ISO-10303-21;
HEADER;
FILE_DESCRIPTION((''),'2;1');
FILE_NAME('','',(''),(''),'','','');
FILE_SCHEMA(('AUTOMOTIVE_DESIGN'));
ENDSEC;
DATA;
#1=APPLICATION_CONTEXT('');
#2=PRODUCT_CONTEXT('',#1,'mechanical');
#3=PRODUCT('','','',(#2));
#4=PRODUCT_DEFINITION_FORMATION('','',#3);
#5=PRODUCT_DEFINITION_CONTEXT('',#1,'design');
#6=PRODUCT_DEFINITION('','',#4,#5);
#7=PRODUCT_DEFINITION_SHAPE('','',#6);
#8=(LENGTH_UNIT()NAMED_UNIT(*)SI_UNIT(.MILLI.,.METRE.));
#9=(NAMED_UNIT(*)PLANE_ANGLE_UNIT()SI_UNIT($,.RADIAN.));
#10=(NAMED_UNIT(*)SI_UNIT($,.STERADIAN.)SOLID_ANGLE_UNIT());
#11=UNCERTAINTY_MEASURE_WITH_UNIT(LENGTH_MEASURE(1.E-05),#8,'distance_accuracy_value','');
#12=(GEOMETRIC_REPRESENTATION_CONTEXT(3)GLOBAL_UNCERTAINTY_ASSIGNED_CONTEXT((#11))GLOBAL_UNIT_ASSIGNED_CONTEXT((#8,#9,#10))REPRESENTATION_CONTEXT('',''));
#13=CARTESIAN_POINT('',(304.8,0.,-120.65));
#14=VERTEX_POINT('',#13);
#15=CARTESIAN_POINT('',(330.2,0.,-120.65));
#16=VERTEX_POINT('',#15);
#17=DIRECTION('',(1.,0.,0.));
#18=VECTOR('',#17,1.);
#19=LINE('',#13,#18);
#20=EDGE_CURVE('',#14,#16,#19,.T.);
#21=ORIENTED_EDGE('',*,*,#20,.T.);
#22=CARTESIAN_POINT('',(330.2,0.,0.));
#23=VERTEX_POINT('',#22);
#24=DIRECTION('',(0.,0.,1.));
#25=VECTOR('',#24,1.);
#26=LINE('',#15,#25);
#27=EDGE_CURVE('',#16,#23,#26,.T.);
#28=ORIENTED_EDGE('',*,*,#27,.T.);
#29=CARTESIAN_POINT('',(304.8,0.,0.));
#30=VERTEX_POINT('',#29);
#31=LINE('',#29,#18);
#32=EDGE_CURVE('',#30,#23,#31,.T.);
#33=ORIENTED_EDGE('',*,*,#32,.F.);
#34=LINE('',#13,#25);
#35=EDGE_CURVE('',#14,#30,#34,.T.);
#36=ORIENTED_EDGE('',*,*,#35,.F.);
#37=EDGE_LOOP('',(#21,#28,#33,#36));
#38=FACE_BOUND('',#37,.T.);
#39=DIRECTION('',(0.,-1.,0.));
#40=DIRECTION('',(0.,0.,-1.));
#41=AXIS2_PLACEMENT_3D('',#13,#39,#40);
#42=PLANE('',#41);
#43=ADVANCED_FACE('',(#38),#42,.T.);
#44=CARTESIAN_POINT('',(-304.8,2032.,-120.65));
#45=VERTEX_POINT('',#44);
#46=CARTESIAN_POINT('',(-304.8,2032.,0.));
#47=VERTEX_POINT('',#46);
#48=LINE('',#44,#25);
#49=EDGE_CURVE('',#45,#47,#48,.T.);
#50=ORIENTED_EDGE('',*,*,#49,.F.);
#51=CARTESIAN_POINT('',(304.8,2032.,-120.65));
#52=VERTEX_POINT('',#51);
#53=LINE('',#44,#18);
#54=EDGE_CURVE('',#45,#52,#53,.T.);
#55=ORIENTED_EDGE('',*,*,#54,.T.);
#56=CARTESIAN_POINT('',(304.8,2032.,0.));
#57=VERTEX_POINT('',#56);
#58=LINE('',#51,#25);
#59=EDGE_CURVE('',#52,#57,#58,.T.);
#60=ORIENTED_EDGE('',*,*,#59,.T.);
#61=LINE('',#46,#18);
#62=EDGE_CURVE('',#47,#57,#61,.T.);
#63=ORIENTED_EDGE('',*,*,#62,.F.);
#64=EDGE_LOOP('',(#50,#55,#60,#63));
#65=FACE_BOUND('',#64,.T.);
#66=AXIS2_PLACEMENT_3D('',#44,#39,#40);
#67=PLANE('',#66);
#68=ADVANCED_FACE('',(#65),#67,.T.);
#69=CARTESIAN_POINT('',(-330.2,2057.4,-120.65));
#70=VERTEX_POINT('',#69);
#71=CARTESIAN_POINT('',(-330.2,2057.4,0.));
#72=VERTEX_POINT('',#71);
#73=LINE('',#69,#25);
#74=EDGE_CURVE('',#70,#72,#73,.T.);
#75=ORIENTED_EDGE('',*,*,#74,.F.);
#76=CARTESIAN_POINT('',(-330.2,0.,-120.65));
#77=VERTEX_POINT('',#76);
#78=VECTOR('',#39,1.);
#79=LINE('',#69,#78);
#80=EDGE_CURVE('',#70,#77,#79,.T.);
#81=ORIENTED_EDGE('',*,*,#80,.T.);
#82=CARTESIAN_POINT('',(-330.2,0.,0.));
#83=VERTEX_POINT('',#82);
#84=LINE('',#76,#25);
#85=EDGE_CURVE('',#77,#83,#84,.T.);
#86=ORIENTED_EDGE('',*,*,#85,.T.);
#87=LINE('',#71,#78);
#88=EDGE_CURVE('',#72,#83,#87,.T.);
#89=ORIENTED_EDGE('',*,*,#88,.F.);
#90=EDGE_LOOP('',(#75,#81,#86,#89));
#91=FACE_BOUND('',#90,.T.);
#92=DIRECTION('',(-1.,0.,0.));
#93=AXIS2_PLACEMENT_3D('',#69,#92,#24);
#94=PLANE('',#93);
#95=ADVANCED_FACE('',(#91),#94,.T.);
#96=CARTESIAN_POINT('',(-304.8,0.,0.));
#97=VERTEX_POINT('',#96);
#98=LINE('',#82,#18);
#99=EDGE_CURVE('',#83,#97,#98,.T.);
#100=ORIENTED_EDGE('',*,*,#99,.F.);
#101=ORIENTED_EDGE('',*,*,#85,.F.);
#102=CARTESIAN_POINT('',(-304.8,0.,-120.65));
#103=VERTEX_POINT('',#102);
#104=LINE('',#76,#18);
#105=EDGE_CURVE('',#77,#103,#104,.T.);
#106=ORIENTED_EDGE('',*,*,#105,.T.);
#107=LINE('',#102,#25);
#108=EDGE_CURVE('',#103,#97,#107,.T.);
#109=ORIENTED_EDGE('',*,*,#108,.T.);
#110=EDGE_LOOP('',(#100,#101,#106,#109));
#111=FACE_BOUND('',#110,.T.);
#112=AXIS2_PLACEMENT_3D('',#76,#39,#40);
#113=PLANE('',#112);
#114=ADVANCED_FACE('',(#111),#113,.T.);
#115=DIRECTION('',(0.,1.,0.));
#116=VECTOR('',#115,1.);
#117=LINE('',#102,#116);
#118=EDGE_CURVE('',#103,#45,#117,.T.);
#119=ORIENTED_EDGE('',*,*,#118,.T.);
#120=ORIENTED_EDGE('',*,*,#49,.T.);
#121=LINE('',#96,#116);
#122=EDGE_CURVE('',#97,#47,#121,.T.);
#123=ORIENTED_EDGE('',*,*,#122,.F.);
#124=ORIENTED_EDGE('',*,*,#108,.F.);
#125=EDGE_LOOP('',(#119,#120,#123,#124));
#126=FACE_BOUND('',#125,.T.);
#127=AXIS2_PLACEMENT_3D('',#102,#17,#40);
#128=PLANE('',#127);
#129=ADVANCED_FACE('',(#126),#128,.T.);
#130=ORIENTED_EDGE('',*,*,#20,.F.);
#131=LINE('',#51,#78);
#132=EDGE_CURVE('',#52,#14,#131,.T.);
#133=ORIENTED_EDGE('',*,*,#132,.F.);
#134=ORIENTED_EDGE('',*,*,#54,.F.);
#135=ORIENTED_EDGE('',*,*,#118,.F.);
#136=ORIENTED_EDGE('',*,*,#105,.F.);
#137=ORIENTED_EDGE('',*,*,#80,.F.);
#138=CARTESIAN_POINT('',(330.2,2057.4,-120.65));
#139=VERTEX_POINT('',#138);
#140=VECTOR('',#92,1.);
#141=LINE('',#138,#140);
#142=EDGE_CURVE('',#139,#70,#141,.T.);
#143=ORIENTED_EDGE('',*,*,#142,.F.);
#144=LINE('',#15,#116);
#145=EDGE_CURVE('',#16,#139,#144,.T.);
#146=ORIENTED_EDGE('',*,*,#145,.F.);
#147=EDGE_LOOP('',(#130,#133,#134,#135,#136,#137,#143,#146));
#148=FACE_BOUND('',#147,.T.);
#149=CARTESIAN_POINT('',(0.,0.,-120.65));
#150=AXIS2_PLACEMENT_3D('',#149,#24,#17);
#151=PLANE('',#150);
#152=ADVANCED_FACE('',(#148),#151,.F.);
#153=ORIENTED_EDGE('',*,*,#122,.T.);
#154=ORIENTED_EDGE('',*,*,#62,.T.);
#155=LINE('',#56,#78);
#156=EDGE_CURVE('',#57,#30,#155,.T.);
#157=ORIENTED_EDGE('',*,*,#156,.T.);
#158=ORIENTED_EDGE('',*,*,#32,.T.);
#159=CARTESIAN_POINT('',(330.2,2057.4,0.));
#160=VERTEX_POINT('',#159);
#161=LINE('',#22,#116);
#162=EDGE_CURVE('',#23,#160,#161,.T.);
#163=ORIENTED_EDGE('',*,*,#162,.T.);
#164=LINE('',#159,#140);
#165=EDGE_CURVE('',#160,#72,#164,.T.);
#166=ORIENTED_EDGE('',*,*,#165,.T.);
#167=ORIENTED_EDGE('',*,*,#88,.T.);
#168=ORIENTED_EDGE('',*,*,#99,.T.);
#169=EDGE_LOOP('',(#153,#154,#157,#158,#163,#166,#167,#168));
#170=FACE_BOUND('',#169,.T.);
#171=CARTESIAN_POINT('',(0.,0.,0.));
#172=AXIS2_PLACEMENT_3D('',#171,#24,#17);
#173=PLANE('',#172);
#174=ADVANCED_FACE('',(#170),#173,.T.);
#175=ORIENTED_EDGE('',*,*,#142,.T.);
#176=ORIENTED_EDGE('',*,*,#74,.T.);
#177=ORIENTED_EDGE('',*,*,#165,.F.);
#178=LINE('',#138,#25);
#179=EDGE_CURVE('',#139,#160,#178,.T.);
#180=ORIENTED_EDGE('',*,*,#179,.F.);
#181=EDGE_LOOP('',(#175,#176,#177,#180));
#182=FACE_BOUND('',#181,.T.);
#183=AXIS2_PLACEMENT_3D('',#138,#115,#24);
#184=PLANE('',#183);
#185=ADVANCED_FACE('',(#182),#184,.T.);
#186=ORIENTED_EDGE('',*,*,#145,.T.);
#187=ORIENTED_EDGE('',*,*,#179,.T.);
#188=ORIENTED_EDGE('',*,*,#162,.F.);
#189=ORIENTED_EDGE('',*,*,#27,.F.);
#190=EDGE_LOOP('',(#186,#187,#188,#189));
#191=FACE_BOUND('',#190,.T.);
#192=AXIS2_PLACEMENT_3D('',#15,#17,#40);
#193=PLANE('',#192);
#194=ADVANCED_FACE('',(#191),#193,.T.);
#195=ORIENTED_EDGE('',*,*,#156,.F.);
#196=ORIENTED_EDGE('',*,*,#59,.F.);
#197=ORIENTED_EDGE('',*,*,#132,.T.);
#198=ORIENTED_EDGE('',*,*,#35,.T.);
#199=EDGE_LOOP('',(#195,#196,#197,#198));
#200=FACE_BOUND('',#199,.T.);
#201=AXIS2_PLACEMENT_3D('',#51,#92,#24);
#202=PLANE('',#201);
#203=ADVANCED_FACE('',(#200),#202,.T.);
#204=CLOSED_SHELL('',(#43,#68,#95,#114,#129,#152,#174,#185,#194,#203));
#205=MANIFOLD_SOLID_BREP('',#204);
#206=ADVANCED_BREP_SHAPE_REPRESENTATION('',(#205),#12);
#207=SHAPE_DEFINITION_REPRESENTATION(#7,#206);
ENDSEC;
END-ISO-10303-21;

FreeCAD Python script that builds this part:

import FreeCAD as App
import Part
import Sketcher

V = App.Vector
Q = App.Units.Quantity

doc = App.newDocument("Part")
body = doc.addObject("PartDesign::Body", "Body")

# Sketch on XY plane
sketch1 = body.newObject("Sketcher::SketchObject", "Sketch")
sketch1.AttachmentSupport = (doc.getObject("XY_Plane"), [""])
sketch1.MapMode = "FlatFace"
sketch1.addGeometry([
    Part.LineSegment(V(-305, 0, 0), V(-305, 2032, 0)),  # 0
    Part.LineSegment(V(-305, 2032, 0), V(305, 2032, 0)),  # 1
    Part.LineSegment(V(305, 2032, 0), V(305, 0, 0)),  # 2
    Part.LineSegment(V(305, 0, 0), V(330, 0, 0)),  # 3
    Part.LineSegment(V(330, 0, 0), V(330, 2057, 0)),  # 4
    Part.LineSegment(V(330, 2057, 0), V(-330, 2057, 0)),  # 5
    Part.LineSegment(V(-330, 2057, 0), V(-330, 0, 0)),  # 6
    Part.LineSegment(V(-330, 0, 0), V(-305, 0, 0)),  # 7
], False)
sketch1.addConstraint([
    Sketcher.Constraint("Coincident", 0, 2, 1, 1),
    Sketcher.Constraint("Coincident", 1, 2, 2, 1),
    Sketcher.Constraint("Coincident", 2, 2, 3, 1),
    Sketcher.Constraint("Coincident", 3, 2, 4, 1),
    Sketcher.Constraint("Coincident", 4, 2, 5, 1),
    Sketcher.Constraint("Coincident", 5, 2, 6, 1),
    Sketcher.Constraint("Coincident", 6, 2, 7, 1),
    Sketcher.Constraint("Coincident", 7, 2, 0, 1),
    Sketcher.Constraint("Vertical", 0),
    Sketcher.Constraint("Horizontal", 1),
    Sketcher.Constraint("Vertical", 2),
    Sketcher.Constraint("Horizontal", 3),
    Sketcher.Constraint("Vertical", 4),
    Sketcher.Constraint("Horizontal", 5),
    Sketcher.Constraint("Vertical", 6),
    Sketcher.Constraint("Horizontal", 7),
    Sketcher.Constraint("Symmetric", 3, 2, 6, 2, -1, 1),
    Sketcher.Constraint("Symmetric", 2, 2, 7, 2, -2),
    Sketcher.Constraint("DistanceX", 1, 1, 1, 2, Q("24 in")),
    Sketcher.Constraint("DistanceX", 3, 1, 3, 2, Q("1 in")),
    Sketcher.Constraint("DistanceY", 0, 1, 0, 2, Q("80 in")),
    Sketcher.Constraint("DistanceY", 4, 1, 4, 2, Q("81 in")),
])
pad1 = body.newObject("PartDesign::Pad", "Pad")
pad1.Profile = sketch1
pad1.Length = Q("4.75 in")
pad1.Reversed = True

doc.recompute()
